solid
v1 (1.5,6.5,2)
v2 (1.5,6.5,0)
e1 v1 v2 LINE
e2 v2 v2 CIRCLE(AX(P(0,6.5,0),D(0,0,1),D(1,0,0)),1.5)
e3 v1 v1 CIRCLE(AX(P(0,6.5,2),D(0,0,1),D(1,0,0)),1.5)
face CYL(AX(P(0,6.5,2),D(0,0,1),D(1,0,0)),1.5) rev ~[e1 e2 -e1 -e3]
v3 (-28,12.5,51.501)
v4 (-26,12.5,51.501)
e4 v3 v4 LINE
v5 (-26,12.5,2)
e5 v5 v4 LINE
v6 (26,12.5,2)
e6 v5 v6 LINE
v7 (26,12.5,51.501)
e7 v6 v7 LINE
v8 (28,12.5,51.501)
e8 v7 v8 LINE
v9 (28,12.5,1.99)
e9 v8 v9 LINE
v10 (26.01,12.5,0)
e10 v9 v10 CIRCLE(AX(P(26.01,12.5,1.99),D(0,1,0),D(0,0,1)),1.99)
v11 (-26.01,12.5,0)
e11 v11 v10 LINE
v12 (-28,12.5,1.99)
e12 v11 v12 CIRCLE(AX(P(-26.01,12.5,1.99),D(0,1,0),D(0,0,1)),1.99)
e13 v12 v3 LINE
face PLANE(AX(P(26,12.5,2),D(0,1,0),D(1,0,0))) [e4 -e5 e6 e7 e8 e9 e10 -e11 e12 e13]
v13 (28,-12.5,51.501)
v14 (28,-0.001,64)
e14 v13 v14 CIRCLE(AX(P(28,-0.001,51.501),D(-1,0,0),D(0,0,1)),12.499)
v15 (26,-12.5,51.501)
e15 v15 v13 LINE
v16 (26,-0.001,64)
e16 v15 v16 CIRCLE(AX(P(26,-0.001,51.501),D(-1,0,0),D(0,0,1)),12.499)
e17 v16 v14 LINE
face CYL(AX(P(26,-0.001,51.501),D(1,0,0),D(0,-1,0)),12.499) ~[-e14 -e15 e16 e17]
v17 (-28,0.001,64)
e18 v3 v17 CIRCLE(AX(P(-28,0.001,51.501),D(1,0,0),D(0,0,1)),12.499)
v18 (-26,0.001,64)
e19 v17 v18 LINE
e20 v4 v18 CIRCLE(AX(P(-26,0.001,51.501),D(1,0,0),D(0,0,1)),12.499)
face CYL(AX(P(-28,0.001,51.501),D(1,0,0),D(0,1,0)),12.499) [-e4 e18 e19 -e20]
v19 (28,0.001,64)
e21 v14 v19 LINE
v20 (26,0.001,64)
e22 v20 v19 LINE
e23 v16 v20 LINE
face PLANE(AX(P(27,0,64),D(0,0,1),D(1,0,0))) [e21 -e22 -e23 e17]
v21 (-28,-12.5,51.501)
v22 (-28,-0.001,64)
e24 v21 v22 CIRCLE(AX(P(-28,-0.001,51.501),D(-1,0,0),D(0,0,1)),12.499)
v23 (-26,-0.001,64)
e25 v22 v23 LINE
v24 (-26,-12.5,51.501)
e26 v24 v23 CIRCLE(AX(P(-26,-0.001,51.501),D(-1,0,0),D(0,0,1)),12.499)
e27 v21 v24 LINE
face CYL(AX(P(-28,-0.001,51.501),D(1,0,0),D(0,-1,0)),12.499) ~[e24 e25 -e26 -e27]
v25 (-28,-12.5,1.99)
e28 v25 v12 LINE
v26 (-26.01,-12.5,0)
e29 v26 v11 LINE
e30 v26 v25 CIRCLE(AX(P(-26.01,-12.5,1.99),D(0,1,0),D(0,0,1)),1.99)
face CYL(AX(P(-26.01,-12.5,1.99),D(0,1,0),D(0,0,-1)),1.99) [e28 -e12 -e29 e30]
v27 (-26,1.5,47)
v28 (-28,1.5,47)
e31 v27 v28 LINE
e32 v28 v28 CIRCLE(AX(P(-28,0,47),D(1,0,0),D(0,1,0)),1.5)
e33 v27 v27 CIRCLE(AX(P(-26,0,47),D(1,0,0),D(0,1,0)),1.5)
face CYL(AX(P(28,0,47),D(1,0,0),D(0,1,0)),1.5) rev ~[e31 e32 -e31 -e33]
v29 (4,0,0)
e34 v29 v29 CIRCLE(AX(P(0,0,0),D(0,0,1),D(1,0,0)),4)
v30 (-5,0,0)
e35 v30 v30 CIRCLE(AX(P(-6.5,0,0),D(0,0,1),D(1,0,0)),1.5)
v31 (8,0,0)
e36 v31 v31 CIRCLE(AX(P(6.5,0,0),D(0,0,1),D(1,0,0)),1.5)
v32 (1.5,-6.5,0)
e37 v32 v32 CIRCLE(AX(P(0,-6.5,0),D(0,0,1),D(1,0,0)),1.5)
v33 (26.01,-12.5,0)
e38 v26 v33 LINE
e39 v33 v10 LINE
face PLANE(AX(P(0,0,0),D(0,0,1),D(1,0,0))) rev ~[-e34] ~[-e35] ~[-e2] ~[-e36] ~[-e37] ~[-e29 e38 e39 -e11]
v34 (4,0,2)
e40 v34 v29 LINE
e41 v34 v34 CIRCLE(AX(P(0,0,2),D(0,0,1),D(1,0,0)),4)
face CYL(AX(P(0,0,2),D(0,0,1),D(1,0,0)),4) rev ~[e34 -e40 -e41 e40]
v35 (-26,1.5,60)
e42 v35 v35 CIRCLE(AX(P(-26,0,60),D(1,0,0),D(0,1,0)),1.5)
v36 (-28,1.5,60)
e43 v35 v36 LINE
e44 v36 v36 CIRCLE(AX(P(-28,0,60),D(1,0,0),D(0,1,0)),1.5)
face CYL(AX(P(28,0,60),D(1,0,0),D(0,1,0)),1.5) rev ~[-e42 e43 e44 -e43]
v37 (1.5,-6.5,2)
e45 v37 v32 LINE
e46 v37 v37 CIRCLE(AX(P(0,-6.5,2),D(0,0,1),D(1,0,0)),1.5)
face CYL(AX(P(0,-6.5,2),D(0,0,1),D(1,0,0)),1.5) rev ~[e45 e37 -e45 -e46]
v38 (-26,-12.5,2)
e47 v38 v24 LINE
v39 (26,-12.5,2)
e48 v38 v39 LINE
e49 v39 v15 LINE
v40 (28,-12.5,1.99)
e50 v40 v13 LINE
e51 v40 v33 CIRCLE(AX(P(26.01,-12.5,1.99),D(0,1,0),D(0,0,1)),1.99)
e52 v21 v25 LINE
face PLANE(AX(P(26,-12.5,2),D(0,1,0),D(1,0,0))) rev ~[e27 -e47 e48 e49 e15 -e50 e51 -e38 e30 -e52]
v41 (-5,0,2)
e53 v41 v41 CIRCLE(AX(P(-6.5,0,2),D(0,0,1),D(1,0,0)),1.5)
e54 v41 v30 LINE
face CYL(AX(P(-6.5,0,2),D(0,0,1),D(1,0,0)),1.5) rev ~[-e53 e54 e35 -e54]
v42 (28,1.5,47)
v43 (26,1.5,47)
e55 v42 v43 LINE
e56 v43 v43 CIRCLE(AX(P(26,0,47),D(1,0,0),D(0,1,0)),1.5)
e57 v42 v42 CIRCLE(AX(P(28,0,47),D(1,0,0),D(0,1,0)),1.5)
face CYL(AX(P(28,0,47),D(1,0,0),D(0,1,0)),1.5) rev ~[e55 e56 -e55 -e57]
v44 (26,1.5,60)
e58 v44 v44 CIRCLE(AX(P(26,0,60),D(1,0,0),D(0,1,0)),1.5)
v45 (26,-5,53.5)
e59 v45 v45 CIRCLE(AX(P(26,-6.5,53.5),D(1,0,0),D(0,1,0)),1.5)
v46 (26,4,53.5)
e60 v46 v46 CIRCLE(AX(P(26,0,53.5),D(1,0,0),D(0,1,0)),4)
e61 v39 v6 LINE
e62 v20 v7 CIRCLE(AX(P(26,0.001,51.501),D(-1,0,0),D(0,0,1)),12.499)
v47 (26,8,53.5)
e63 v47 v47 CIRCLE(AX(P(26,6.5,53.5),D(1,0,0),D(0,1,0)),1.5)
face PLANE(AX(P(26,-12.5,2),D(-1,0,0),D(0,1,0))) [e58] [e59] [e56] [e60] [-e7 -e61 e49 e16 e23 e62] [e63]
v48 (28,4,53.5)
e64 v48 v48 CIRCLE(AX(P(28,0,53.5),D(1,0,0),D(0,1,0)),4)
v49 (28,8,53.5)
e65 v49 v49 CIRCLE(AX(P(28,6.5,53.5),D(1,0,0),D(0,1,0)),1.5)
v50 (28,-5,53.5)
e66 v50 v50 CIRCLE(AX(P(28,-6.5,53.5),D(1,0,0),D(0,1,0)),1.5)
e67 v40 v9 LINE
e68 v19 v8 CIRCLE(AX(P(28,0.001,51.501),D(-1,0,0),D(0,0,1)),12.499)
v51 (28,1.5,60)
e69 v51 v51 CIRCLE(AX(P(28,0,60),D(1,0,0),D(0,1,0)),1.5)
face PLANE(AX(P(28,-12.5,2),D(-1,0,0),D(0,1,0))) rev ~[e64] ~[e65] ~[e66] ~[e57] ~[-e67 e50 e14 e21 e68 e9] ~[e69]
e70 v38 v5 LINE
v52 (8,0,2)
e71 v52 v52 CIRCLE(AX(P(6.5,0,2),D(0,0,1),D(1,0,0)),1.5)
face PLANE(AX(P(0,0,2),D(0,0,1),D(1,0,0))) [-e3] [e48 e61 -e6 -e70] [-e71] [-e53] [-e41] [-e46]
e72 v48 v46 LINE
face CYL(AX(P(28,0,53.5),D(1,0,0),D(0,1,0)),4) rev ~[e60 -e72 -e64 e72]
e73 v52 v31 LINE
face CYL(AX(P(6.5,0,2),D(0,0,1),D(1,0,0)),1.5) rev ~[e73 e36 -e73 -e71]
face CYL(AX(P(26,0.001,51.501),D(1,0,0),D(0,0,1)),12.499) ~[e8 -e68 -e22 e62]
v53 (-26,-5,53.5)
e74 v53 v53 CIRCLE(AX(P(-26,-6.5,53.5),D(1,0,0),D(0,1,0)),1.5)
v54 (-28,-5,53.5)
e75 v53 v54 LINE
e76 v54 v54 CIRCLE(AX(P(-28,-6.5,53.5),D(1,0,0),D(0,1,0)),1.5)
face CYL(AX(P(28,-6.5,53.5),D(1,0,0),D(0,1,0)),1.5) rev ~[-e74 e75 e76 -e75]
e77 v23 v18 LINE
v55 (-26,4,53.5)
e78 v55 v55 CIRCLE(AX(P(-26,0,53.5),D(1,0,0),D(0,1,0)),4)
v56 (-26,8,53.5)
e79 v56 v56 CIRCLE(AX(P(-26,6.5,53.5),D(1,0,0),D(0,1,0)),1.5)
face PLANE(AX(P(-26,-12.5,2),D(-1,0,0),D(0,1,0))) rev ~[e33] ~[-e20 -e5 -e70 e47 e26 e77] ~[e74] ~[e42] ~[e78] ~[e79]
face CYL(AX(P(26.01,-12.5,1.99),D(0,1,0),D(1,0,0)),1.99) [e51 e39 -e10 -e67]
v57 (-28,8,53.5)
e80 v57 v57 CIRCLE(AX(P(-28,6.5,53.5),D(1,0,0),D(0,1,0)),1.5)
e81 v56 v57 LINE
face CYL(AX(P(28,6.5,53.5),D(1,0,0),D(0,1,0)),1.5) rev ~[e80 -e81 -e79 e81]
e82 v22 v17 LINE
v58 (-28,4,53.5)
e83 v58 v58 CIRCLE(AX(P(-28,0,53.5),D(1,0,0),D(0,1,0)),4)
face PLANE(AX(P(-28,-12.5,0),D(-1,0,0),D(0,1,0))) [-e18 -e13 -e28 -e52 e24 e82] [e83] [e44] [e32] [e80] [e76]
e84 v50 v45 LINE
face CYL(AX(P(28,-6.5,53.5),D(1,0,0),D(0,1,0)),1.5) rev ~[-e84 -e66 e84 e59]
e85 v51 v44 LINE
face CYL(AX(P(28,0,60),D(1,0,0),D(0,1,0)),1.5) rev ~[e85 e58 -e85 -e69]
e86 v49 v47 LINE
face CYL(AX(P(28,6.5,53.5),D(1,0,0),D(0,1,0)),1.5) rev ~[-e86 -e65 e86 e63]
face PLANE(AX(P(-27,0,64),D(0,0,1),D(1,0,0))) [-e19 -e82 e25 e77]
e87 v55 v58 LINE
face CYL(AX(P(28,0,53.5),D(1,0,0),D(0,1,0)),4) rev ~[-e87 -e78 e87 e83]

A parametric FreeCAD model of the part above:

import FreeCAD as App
import Part
import Sketcher
from FreeCAD import Vector


def edges_at(feature, points):
    """Names of the edges that pass closest to the given points."""
    edges = feature.Shape.Edges
    near = lambda p: min(range(len(edges)), key=lambda i: edges[i].distToShape(Part.Vertex(*p))[0])
    return sorted({f"Edge{near(p) + 1}" for p in points})


def add_polygon(sketch, points):
    """Adds a closed chain of lines whose ends are joined by coincident constraints."""
    first, n = sketch.GeometryCount, len(points)
    for a, b in zip(points, points[1:] + points[:1]):
        sketch.addGeometry(Part.LineSegment(App.Vector(*a, 0), App.Vector(*b, 0)), False)
    for i in range(n):
        sketch.addConstraint(Sketcher.Constraint("Coincident", first + i, 2, first + (i + 1) % n, 1))

doc = App.newDocument("Part")
body = doc.addObject("PartDesign::Body", "Body")

# Sketch on XY plane
sketch1 = body.newObject("Sketcher::SketchObject", "Sketch")
sketch1.AttachmentSupport = (doc.getObject("XY_Plane"), [""])
sketch1.MapMode = "FlatFace"
add_polygon(sketch1, [(-28, 12.5), (-28, -12.5), (28, -12.5), (28, 12.5)])  # lines 0-3
sketch1.addConstraint([
    Sketcher.Constraint("Vertical", 0),
    Sketcher.Constraint("Horizontal", 1),
    Sketcher.Constraint("Vertical", 2),
    Sketcher.Constraint("Horizontal", 3),
    Sketcher.Constraint("Symmetric", 0, 2, 2, 2, -1, 1),
    Sketcher.Constraint("DistanceX", 1, 1, 1, 2, 56.0),
    Sketcher.Constraint("DistanceY", 0, 2, 0, 1, 25.0),
])
pad1 = body.newObject("PartDesign::Pad", "Pad")
pad1.Profile = sketch1
pad1.Length = 2

# Sketch on XY plane
sketch2 = body.newObject("Sketcher::SketchObject", "Sketch001")
sketch2.AttachmentSupport = (doc.getObject("XY_Plane"), [""])
sketch2.MapMode = "FlatFace"
sketch2.AttachmentOffset = App.Placement(Vector(0, 0, 2), App.Rotation())
add_polygon(sketch2, [(26, 12.5), (26, -12.5), (28, -12.5), (28, 12.5)])  # lines 0-3
add_polygon(sketch2, [(-28, 12.5), (-28, -12.5), (-26, -12.5), (-26, 12.5)])  # lines 4-7
sketch2.addConstraint([
    Sketcher.Constraint("Vertical", 0),
    Sketcher.Constraint("Horizontal", 1),
    Sketcher.Constraint("Vertical", 2),
    Sketcher.Constraint("Horizontal", 3),
    Sketcher.Constraint("Vertical", 4),
    Sketcher.Constraint("Horizontal", 5),
    Sketcher.Constraint("Vertical", 6),
    Sketcher.Constraint("Horizontal", 7),
    Sketcher.Constraint("Symmetric", 2, 2, 4, 2, -1, 1),
    Sketcher.Constraint("Symmetric", 0, 2, 6, 2, -1, 1),
    Sketcher.Constraint("Horizontal", 1, 2, 4, 2),
    Sketcher.Constraint("DistanceX", 1, 1, 1, 2, 2.0),
    Sketcher.Constraint("DistanceY", 0, 2, 0, 1, 25.0),
    Sketcher.Constraint("DistanceX", -1, 1, 0, 2, 26.0),
])
pad2 = body.newObject("PartDesign::Pad", "Pad001")
pad2.Profile = sketch2
pad2.Length = 62

# Sketch on YZ plane
sketch3 = body.newObject("Sketcher::SketchObject", "Sketch002")
sketch3.AttachmentSupport = (doc.getObject("YZ_Plane"), [""])
sketch3.MapMode = "FlatFace"
sketch3.AttachmentOffset = App.Placement(Vector(0, 0, 28), App.Rotation())
sketch3.addGeometry([
    Part.Circle(Vector(0, 53.5, 0), Vector(0, 0, 1), 4),  # 0
    Part.Circle(Vector(0, 47, 0), Vector(0, 0, 1), 1.5),  # 1
    Part.Circle(Vector(6.5, 53.5, 0), Vector(0, 0, 1), 1.5),  # 2
    Part.Circle(Vector(-6.5, 53.5, 0), Vector(0, 0, 1), 1.5),  # 3
    Part.Circle(Vector(0, 60, 0), Vector(0, 0, 1), 1.5),  # 4
], False)
sketch3.addConstraint([
    Sketcher.Constraint("Equal", 1, 2),
    Sketcher.Constraint("Equal", 2, 3),
    Sketcher.Constraint("Equal", 3, 4),
    Sketcher.Constraint("Symmetric", 2, 3, 3, 3, -2),
    Sketcher.Constraint("PointOnObject", 0, 3, -2),
    Sketcher.Constraint("PointOnObject", 1, 3, -2),
    Sketcher.Constraint("PointOnObject", 4, 3, -2),
    Sketcher.Constraint("Horizontal", 0, 3, 2, 3),
    Sketcher.Constraint("Diameter", 0, 8.0),
    Sketcher.Constraint("Diameter", 1, 3.0),
    Sketcher.Constraint("DistanceY", -1, 1, 1, 3, 47.0),
    Sketcher.Constraint("DistanceY", -1, 1, 4, 3, 60.0),
    Sketcher.Constraint("DistanceX", 3, 3, 2, 3, 13.0),
    Sketcher.Constraint("DistanceY", -1, 1, 0, 3, 53.5),
])
pocket1 = body.newObject("PartDesign::Pocket", "Pocket")
pocket1.Profile = sketch3
pocket1.Type = "ThroughAll"
doc.recompute()

fillet = body.newObject("PartDesign::Fillet", "Fillet")
fillet.Base = (pocket1, edges_at(pocket1, [
    (-27, -12.5, 64),
    (-27, 12.5, 64),
    (27, -12.5, 64),
    (27, 12.5, 64),
]))
fillet.Radius = 12.499
doc.recompute()

fillet2 = body.newObject("PartDesign::Fillet", "Fillet001")
fillet2.Base = (fillet, edges_at(fillet, [(28, 0, 0), (-28, 0, 0)]))
fillet2.Radius = 1.99

# Sketch on XY plane
sketch4 = body.newObject("Sketcher::SketchObject", "Sketch003")
sketch4.AttachmentSupport = (doc.getObject("XY_Plane"), [""])
sketch4.MapMode = "FlatFace"
sketch4.AttachmentOffset = App.Placement(Vector(0, 0, 2), App.Rotation())
sketch4.addGeometry([
    Part.Circle(Vector(0, 0, 0), Vector(0, 0, 1), 4),  # 0
    Part.Circle(Vector(6.5, 0, 0), Vector(0, 0, 1), 1.5),  # 1
    Part.Circle(Vector(-6.5, 0, 0), Vector(0, 0, 1), 1.5),  # 2
    Part.Circle(Vector(0, -6.5, 0), Vector(0, 0, 1), 1.5),  # 3
    Part.Circle(Vector(0, 6.5, 0), Vector(0, 0, 1), 1.5),  # 4
], False)
sketch4.addConstraint([
    Sketcher.Constraint("Coincident", 0, 3, -1, 1),
    Sketcher.Constraint("Equal", 1, 2),
    Sketcher.Constraint("Equal", 2, 3),
    Sketcher.Constraint("Equal", 3, 4),
    Sketcher.Constraint("Symmetric", 1, 3, 2, 3, -1, 1),
    Sketcher.Constraint("Symmetric", 3, 3, 4, 3, -1, 1),
    Sketcher.Constraint("PointOnObject", 1, 3, -1),
    Sketcher.Constraint("PointOnObject", 3, 3, -2),
    Sketcher.Constraint("Diameter", 0, 8.0),
    Sketcher.Constraint("Diameter", 1, 3.0),
    Sketcher.Constraint("DistanceX", 2, 3, 1, 3, 13.0),
    Sketcher.Constraint("DistanceY", 3, 3, 4, 3, 13.0),
])
pocket2 = body.newObject("PartDesign::Pocket", "Pocket001")
pocket2.Profile = sketch4
pocket2.Length = 5

doc.recompute()
